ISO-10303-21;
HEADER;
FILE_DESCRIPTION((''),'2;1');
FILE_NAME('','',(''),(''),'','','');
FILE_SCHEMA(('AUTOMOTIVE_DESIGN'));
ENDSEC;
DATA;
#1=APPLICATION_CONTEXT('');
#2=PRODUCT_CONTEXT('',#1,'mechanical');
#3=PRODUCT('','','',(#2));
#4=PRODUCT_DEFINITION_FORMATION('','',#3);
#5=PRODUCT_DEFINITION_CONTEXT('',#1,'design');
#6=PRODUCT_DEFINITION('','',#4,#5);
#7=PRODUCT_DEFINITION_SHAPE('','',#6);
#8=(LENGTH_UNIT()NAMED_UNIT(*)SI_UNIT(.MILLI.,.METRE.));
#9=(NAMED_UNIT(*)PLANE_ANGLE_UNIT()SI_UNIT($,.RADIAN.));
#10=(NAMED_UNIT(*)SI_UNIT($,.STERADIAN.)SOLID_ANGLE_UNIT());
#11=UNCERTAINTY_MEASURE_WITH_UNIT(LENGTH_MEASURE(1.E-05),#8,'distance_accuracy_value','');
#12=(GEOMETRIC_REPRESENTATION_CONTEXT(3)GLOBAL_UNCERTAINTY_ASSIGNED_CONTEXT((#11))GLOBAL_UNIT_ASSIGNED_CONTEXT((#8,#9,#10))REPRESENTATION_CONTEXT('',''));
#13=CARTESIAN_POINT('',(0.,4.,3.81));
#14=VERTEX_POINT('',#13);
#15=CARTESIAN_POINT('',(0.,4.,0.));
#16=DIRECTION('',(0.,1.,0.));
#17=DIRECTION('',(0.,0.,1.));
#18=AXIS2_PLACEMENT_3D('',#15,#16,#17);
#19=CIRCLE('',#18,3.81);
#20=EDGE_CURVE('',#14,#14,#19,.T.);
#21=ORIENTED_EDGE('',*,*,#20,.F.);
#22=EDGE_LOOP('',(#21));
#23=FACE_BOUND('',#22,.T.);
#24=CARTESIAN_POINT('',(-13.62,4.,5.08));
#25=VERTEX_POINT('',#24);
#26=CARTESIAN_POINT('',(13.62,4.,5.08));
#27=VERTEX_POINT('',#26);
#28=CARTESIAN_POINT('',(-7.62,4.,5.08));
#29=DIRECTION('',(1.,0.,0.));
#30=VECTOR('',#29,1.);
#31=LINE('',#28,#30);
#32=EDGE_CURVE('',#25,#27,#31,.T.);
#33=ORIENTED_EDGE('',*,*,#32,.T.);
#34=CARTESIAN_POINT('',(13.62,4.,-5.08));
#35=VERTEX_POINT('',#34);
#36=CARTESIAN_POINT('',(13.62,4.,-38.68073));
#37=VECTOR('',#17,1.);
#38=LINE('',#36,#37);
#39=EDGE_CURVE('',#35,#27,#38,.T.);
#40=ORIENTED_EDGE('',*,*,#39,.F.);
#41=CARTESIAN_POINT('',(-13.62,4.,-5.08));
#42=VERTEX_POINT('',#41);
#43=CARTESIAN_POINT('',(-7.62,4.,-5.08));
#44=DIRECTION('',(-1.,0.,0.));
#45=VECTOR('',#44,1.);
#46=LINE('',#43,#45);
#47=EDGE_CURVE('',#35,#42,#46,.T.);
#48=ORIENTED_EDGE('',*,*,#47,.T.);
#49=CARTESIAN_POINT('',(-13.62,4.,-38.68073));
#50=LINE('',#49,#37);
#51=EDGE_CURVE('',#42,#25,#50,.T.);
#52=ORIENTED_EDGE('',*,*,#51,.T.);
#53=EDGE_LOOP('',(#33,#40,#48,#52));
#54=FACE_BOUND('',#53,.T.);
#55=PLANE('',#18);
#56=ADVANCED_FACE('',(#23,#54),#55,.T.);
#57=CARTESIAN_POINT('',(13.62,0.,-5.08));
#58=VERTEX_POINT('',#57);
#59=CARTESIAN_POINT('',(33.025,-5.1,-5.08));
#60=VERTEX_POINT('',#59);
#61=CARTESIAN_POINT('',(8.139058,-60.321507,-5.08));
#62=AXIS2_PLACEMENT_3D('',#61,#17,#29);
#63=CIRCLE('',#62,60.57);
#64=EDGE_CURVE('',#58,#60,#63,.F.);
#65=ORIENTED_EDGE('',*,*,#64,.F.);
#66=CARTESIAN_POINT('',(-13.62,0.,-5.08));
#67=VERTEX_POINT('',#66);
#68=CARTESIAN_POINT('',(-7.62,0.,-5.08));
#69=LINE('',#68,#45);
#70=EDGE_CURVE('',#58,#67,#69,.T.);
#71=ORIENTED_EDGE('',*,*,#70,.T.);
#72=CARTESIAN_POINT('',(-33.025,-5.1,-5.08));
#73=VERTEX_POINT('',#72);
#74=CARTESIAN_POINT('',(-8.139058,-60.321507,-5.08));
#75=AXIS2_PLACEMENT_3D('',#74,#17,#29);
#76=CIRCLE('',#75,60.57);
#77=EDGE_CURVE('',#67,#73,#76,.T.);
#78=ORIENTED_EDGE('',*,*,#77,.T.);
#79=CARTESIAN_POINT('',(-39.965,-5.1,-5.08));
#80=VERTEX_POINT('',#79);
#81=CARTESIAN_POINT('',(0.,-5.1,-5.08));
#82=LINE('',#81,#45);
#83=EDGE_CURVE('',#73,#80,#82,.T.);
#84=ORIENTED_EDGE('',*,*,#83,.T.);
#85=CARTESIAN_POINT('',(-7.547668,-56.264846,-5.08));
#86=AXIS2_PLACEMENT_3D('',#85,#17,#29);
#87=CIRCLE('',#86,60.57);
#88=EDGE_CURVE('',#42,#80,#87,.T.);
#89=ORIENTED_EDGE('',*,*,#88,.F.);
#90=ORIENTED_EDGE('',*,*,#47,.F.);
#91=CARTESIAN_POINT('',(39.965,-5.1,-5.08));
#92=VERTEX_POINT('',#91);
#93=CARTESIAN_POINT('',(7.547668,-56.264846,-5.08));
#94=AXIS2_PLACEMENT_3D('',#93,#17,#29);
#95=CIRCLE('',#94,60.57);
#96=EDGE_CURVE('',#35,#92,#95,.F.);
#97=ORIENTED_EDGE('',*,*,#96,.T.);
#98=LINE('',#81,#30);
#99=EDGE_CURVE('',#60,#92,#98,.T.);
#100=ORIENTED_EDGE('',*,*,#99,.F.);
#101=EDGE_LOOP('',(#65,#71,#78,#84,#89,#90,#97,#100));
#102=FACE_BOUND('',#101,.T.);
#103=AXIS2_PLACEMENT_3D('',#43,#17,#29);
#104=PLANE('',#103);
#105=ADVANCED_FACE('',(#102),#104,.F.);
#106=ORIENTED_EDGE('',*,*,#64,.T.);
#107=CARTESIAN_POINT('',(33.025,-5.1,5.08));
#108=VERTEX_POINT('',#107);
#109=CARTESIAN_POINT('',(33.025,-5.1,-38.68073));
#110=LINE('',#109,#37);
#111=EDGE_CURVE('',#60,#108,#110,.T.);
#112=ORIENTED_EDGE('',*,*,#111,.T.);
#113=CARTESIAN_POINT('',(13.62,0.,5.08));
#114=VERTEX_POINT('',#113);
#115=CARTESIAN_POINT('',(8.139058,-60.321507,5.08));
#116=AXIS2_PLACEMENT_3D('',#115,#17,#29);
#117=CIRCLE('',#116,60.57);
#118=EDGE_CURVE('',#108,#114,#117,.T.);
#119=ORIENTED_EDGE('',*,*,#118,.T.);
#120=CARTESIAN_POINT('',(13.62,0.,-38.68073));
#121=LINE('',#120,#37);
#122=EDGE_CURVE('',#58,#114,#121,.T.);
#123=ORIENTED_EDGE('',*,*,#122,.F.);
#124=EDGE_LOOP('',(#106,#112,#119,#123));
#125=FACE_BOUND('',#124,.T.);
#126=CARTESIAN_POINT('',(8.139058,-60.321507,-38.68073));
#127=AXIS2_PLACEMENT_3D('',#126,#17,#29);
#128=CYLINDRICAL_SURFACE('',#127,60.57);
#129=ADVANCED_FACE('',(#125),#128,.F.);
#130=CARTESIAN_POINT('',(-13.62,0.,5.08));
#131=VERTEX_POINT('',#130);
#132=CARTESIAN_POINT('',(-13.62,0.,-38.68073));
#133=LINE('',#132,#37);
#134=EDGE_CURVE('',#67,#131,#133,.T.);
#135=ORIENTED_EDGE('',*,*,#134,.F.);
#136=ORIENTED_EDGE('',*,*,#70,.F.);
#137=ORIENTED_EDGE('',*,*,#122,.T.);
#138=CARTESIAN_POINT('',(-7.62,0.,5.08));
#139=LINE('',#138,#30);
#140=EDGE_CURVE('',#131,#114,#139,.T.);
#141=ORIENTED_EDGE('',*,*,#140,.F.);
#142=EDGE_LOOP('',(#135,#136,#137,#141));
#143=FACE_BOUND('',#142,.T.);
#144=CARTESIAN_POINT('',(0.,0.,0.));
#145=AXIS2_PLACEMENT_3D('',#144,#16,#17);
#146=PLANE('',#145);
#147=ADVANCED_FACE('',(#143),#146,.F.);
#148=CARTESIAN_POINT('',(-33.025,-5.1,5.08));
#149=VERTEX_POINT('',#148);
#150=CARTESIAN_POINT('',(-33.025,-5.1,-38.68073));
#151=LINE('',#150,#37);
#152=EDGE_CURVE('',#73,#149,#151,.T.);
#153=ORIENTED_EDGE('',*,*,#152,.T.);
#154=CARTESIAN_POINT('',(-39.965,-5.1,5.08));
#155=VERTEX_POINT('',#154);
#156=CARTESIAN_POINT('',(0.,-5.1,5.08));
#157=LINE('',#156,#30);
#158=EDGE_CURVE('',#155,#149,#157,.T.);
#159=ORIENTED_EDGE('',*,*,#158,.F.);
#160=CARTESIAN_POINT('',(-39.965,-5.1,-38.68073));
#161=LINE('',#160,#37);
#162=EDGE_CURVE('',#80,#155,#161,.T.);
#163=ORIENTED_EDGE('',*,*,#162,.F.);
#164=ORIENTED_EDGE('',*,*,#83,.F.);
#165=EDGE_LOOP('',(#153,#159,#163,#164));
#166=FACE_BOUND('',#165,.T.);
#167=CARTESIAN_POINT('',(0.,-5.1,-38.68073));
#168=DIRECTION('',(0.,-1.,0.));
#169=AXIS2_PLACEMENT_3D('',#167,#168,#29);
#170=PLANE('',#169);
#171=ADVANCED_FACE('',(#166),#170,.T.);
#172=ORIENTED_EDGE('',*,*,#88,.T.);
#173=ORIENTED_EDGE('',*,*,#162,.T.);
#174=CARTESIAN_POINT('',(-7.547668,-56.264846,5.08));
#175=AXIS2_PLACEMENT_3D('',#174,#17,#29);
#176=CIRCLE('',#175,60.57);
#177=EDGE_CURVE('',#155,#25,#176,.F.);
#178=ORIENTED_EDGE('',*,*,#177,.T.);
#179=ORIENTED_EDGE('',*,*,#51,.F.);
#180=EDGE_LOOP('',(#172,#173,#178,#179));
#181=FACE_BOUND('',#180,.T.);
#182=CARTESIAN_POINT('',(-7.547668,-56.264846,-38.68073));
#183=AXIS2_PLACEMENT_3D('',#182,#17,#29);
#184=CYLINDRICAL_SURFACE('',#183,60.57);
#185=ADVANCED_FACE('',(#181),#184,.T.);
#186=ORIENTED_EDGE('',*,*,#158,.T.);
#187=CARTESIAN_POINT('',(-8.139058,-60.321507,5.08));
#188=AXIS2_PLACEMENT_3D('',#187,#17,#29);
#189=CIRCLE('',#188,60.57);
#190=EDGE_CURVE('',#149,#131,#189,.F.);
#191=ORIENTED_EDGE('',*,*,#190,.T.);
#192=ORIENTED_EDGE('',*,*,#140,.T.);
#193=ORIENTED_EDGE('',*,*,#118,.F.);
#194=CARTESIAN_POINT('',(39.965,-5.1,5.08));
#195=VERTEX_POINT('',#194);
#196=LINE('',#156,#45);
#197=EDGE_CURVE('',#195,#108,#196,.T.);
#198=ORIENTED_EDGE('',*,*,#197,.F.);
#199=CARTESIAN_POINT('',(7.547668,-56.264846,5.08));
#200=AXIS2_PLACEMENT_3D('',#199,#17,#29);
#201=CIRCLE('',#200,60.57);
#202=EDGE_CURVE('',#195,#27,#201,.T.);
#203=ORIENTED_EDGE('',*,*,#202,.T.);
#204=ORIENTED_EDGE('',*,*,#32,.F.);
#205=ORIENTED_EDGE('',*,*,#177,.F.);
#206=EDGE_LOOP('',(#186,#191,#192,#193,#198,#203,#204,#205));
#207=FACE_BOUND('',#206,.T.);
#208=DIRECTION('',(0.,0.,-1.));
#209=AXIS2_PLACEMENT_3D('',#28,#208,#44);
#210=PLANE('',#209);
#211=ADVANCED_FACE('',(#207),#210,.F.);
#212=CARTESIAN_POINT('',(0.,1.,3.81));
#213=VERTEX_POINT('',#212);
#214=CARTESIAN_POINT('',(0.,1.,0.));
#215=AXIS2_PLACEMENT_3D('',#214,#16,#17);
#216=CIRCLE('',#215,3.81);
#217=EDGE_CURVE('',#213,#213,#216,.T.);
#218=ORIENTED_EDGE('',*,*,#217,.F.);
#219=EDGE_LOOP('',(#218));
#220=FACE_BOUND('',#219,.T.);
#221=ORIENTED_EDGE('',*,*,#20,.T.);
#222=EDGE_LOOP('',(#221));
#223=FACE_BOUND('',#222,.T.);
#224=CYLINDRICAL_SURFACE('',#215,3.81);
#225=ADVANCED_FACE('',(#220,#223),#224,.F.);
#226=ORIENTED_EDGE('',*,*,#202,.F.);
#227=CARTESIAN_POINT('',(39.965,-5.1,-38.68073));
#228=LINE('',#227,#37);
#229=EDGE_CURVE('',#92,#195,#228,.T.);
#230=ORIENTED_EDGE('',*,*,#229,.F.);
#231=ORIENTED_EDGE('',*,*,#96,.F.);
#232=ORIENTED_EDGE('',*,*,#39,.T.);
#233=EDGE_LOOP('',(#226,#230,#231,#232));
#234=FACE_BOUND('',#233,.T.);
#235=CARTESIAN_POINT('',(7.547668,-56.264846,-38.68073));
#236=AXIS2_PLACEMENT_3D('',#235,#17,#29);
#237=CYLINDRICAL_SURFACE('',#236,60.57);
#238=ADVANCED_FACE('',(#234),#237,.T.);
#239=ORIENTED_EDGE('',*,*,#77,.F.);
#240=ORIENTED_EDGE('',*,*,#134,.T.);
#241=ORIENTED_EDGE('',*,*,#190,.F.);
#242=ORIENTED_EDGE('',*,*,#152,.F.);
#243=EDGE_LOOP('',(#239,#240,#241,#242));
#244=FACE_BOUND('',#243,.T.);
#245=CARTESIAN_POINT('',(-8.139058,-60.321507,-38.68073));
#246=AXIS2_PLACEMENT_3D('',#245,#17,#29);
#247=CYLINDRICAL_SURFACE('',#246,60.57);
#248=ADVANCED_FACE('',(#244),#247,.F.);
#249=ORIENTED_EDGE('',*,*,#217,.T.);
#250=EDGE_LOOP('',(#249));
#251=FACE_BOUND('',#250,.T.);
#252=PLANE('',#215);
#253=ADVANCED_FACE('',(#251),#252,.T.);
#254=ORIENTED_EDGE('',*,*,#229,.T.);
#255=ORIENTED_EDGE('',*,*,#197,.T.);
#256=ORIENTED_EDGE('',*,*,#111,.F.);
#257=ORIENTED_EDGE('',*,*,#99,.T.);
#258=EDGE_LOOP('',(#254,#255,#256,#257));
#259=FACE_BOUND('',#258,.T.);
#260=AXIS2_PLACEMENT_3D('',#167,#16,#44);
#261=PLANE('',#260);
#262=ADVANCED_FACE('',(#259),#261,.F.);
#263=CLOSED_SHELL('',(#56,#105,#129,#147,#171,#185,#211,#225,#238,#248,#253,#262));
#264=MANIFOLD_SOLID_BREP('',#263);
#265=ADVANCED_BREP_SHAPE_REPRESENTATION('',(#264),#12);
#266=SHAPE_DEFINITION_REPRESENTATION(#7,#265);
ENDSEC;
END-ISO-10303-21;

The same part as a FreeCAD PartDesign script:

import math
import FreeCAD as App
import Part
import Sketcher

V = App.Vector

doc = App.newDocument("Part")
body = doc.addObject("PartDesign::Body", "Body")

sketch1 = body.newObject("Sketcher::SketchObject", "Sketch")
sketch1.AttachmentSupport = (doc.getObject("XZ_Plane"), [""])
sketch1.MapMode = "FlatFace"
sketch1.addGeometry([
    Part.LineSegment(V(-7.62, -5.08, 0), V(-7.62, 5.08, 0)),
    Part.LineSegment(V(-7.62, 5.08, 0), V(7.62, 5.08, 0)),
    Part.LineSegment(V(7.62, 5.08, 0), V(7.62, -5.08, 0)),
    Part.LineSegment(V(7.62, -5.08, 0), V(-7.62, -5.08, 0)),
], False)
sketch1.addConstraint([
    Sketcher.Constraint("Coincident", 0, 2, 1, 1),
    Sketcher.Constraint("Coincident", 1, 2, 2, 1),
    Sketcher.Constraint("Coincident", 2, 2, 3, 1),
    Sketcher.Constraint("Coincident", 3, 2, 0, 1),
    Sketcher.Constraint("Vertical", 0),
    Sketcher.Constraint("Horizontal", 1),
    Sketcher.Constraint("Vertical", 2),
    Sketcher.Constraint("Horizontal", 3),
    Sketcher.Constraint("Symmetric", 0, 2, 2, 2, -1, 1),
    Sketcher.Constraint("DistanceX", 1, 1, 1, 2, 15.24),
    Sketcher.Constraint("DistanceY", 0, 1, 0, 2, 10.16),
])
pad1 = body.newObject("PartDesign::Pad", "Pad")
pad1.Profile = sketch1
pad1.Length = 4
pad1.Reversed = True

sketch2 = body.newObject("Sketcher::SketchObject", "Sketch001")
sketch2.AttachmentSupport = (doc.getObject("XY_Plane"), [""])
sketch2.MapMode = "FlatFace"
sketch2.AttachmentOffset = App.Placement(V(0, 0, 5.08), App.Rotation())
sketch2.addGeometry([
    Part.LineSegment(V(13.62, 4, 0), V(7.62, 4, 0)),
    Part.LineSegment(V(7.62, 4, 0), V(7.62, 0, 0)),
    Part.LineSegment(V(7.62, 0, 0), V(13.62, 0, 0)),
    Part.ArcOfCircle(Part.Circle(V(8.139058, -60.321507, 0), V(0, 0, 1), 60.57), math.radians(65.740973), math.radians(84.808239)),
    Part.LineSegment(V(33.025, -5.1, 0), V(39.965, -5.1, 0)),
    Part.ArcOfCircle(Part.Circle(V(7.547668, -56.264846, 0), V(0, 0, 1), 60.57), math.radians(57.642224), math.radians(84.246253)),
    Part.LineSegment(V(-7.62, 0, 0), V(-7.62, 4, 0)),
    Part.LineSegment(V(-7.62, 4, 0), V(-13.62, 4, 0)),
    Part.ArcOfCircle(Part.Circle(V(-7.547668, -56.264846, 0), V(0, 0, 1), 60.57), math.radians(95.753747), math.radians(122.357776)),
    Part.LineSegment(V(-39.965, -5.1, 0), V(-33.025, -5.1, 0)),
    Part.ArcOfCircle(Part.Circle(V(-8.139058, -60.321507, 0), V(0, 0, 1), 60.57), math.radians(95.191761), math.radians(114.259027)),
    Part.LineSegment(V(-13.62, 0, 0), V(-7.62, 0, 0)),
], False)
sketch2.addConstraint([
    Sketcher.Constraint("Coincident", 0, 2, 1, 1),
    Sketcher.Constraint("Coincident", 1, 2, 2, 1),
    Sketcher.Constraint("Coincident", 2, 2, 3, 2),
    Sketcher.Constraint("Coincident", 3, 1, 4, 1),
    Sketcher.Constraint("Coincident", 4, 2, 5, 1),
    Sketcher.Constraint("Coincident", 5, 2, 0, 1),
    Sketcher.Constraint("Coincident", 6, 2, 7, 1),
    Sketcher.Constraint("Coincident", 7, 2, 8, 1),
    Sketcher.Constraint("Coincident", 8, 2, 9, 1),
    Sketcher.Constraint("Coincident", 9, 2, 10, 2),
    Sketcher.Constraint("Coincident", 10, 1, 11, 1),
    Sketcher.Constraint("Coincident", 11, 2, 6, 1),
    Sketcher.Constraint("Horizontal", 0),
    Sketcher.Constraint("Vertical", 1),
    Sketcher.Constraint("Horizontal", 2),
    Sketcher.Constraint("Horizontal", 4),
    Sketcher.Constraint("Vertical", 6),
    Sketcher.Constraint("Horizontal", 7),
    Sketcher.Constraint("Horizontal", 9),
    Sketcher.Constraint("Horizontal", 11),
    Sketcher.Constraint("Equal", 3, 5),
    Sketcher.Constraint("Equal", 5, 8),
    Sketcher.Constraint("Equal", 8, 10),
    Sketcher.Constraint("Symmetric", 2, 2, 10, 1, -1, 1),
    Sketcher.Constraint("Symmetric", 5, 3, 8, 3, -2),
    Sketcher.Constraint("Symmetric", 3, 3, 10, 3, -2),
    Sketcher.Constraint("Symmetric", 0, 2, 6, 2, -2),
    Sketcher.Constraint("Horizontal", 4, 2, 8, 2),
    Sketcher.Constraint("Vertical", 2, 2, 5, 2),
    Sketcher.Constraint("DistanceX", 0, 2, 0, 1, 6.0),
    Sketcher.Constraint("DistanceY", 1, 2, 1, 1, 4.0),
    Sketcher.Constraint("Radius", 3, 60.57),
    Sketcher.Constraint("DistanceX", 4, 1, 4, 2, 6.94),
    Sketcher.Constraint("DistanceY", 3, 1, -1, 1, 5.1),
    Sketcher.Constraint("DistanceX", -1, 1, 0, 2, 7.62),
    Sketcher.Constraint("DistanceX", -1, 1, 3, 1, 33.025),
])
pad2 = body.newObject("PartDesign::Pad", "Pad001")
pad2.Profile = sketch2
pad2.Length = 10.16
pad2.Reversed = True

sketch3 = body.newObject("Sketcher::SketchObject", "Sketch002")
sketch3.AttachmentSupport = (doc.getObject("XZ_Plane"), [""])
sketch3.MapMode = "FlatFace"
sketch3.AttachmentOffset = App.Placement(V(0, 0, -4), App.Rotation())
sketch3.addGeometry(Part.Circle(V(0, 0, 0), V(0, 0, 1), 3.81), False)
sketch3.addConstraint([
    Sketcher.Constraint("Coincident", 0, 3, -1, 1),
    Sketcher.Constraint("Diameter", 0, 7.62),
])
pocket1 = body.newObject("PartDesign::Pocket", "Pocket")
pocket1.Profile = sketch3
pocket1.Length = 3
pocket1.Reversed = True

doc.recompute()
